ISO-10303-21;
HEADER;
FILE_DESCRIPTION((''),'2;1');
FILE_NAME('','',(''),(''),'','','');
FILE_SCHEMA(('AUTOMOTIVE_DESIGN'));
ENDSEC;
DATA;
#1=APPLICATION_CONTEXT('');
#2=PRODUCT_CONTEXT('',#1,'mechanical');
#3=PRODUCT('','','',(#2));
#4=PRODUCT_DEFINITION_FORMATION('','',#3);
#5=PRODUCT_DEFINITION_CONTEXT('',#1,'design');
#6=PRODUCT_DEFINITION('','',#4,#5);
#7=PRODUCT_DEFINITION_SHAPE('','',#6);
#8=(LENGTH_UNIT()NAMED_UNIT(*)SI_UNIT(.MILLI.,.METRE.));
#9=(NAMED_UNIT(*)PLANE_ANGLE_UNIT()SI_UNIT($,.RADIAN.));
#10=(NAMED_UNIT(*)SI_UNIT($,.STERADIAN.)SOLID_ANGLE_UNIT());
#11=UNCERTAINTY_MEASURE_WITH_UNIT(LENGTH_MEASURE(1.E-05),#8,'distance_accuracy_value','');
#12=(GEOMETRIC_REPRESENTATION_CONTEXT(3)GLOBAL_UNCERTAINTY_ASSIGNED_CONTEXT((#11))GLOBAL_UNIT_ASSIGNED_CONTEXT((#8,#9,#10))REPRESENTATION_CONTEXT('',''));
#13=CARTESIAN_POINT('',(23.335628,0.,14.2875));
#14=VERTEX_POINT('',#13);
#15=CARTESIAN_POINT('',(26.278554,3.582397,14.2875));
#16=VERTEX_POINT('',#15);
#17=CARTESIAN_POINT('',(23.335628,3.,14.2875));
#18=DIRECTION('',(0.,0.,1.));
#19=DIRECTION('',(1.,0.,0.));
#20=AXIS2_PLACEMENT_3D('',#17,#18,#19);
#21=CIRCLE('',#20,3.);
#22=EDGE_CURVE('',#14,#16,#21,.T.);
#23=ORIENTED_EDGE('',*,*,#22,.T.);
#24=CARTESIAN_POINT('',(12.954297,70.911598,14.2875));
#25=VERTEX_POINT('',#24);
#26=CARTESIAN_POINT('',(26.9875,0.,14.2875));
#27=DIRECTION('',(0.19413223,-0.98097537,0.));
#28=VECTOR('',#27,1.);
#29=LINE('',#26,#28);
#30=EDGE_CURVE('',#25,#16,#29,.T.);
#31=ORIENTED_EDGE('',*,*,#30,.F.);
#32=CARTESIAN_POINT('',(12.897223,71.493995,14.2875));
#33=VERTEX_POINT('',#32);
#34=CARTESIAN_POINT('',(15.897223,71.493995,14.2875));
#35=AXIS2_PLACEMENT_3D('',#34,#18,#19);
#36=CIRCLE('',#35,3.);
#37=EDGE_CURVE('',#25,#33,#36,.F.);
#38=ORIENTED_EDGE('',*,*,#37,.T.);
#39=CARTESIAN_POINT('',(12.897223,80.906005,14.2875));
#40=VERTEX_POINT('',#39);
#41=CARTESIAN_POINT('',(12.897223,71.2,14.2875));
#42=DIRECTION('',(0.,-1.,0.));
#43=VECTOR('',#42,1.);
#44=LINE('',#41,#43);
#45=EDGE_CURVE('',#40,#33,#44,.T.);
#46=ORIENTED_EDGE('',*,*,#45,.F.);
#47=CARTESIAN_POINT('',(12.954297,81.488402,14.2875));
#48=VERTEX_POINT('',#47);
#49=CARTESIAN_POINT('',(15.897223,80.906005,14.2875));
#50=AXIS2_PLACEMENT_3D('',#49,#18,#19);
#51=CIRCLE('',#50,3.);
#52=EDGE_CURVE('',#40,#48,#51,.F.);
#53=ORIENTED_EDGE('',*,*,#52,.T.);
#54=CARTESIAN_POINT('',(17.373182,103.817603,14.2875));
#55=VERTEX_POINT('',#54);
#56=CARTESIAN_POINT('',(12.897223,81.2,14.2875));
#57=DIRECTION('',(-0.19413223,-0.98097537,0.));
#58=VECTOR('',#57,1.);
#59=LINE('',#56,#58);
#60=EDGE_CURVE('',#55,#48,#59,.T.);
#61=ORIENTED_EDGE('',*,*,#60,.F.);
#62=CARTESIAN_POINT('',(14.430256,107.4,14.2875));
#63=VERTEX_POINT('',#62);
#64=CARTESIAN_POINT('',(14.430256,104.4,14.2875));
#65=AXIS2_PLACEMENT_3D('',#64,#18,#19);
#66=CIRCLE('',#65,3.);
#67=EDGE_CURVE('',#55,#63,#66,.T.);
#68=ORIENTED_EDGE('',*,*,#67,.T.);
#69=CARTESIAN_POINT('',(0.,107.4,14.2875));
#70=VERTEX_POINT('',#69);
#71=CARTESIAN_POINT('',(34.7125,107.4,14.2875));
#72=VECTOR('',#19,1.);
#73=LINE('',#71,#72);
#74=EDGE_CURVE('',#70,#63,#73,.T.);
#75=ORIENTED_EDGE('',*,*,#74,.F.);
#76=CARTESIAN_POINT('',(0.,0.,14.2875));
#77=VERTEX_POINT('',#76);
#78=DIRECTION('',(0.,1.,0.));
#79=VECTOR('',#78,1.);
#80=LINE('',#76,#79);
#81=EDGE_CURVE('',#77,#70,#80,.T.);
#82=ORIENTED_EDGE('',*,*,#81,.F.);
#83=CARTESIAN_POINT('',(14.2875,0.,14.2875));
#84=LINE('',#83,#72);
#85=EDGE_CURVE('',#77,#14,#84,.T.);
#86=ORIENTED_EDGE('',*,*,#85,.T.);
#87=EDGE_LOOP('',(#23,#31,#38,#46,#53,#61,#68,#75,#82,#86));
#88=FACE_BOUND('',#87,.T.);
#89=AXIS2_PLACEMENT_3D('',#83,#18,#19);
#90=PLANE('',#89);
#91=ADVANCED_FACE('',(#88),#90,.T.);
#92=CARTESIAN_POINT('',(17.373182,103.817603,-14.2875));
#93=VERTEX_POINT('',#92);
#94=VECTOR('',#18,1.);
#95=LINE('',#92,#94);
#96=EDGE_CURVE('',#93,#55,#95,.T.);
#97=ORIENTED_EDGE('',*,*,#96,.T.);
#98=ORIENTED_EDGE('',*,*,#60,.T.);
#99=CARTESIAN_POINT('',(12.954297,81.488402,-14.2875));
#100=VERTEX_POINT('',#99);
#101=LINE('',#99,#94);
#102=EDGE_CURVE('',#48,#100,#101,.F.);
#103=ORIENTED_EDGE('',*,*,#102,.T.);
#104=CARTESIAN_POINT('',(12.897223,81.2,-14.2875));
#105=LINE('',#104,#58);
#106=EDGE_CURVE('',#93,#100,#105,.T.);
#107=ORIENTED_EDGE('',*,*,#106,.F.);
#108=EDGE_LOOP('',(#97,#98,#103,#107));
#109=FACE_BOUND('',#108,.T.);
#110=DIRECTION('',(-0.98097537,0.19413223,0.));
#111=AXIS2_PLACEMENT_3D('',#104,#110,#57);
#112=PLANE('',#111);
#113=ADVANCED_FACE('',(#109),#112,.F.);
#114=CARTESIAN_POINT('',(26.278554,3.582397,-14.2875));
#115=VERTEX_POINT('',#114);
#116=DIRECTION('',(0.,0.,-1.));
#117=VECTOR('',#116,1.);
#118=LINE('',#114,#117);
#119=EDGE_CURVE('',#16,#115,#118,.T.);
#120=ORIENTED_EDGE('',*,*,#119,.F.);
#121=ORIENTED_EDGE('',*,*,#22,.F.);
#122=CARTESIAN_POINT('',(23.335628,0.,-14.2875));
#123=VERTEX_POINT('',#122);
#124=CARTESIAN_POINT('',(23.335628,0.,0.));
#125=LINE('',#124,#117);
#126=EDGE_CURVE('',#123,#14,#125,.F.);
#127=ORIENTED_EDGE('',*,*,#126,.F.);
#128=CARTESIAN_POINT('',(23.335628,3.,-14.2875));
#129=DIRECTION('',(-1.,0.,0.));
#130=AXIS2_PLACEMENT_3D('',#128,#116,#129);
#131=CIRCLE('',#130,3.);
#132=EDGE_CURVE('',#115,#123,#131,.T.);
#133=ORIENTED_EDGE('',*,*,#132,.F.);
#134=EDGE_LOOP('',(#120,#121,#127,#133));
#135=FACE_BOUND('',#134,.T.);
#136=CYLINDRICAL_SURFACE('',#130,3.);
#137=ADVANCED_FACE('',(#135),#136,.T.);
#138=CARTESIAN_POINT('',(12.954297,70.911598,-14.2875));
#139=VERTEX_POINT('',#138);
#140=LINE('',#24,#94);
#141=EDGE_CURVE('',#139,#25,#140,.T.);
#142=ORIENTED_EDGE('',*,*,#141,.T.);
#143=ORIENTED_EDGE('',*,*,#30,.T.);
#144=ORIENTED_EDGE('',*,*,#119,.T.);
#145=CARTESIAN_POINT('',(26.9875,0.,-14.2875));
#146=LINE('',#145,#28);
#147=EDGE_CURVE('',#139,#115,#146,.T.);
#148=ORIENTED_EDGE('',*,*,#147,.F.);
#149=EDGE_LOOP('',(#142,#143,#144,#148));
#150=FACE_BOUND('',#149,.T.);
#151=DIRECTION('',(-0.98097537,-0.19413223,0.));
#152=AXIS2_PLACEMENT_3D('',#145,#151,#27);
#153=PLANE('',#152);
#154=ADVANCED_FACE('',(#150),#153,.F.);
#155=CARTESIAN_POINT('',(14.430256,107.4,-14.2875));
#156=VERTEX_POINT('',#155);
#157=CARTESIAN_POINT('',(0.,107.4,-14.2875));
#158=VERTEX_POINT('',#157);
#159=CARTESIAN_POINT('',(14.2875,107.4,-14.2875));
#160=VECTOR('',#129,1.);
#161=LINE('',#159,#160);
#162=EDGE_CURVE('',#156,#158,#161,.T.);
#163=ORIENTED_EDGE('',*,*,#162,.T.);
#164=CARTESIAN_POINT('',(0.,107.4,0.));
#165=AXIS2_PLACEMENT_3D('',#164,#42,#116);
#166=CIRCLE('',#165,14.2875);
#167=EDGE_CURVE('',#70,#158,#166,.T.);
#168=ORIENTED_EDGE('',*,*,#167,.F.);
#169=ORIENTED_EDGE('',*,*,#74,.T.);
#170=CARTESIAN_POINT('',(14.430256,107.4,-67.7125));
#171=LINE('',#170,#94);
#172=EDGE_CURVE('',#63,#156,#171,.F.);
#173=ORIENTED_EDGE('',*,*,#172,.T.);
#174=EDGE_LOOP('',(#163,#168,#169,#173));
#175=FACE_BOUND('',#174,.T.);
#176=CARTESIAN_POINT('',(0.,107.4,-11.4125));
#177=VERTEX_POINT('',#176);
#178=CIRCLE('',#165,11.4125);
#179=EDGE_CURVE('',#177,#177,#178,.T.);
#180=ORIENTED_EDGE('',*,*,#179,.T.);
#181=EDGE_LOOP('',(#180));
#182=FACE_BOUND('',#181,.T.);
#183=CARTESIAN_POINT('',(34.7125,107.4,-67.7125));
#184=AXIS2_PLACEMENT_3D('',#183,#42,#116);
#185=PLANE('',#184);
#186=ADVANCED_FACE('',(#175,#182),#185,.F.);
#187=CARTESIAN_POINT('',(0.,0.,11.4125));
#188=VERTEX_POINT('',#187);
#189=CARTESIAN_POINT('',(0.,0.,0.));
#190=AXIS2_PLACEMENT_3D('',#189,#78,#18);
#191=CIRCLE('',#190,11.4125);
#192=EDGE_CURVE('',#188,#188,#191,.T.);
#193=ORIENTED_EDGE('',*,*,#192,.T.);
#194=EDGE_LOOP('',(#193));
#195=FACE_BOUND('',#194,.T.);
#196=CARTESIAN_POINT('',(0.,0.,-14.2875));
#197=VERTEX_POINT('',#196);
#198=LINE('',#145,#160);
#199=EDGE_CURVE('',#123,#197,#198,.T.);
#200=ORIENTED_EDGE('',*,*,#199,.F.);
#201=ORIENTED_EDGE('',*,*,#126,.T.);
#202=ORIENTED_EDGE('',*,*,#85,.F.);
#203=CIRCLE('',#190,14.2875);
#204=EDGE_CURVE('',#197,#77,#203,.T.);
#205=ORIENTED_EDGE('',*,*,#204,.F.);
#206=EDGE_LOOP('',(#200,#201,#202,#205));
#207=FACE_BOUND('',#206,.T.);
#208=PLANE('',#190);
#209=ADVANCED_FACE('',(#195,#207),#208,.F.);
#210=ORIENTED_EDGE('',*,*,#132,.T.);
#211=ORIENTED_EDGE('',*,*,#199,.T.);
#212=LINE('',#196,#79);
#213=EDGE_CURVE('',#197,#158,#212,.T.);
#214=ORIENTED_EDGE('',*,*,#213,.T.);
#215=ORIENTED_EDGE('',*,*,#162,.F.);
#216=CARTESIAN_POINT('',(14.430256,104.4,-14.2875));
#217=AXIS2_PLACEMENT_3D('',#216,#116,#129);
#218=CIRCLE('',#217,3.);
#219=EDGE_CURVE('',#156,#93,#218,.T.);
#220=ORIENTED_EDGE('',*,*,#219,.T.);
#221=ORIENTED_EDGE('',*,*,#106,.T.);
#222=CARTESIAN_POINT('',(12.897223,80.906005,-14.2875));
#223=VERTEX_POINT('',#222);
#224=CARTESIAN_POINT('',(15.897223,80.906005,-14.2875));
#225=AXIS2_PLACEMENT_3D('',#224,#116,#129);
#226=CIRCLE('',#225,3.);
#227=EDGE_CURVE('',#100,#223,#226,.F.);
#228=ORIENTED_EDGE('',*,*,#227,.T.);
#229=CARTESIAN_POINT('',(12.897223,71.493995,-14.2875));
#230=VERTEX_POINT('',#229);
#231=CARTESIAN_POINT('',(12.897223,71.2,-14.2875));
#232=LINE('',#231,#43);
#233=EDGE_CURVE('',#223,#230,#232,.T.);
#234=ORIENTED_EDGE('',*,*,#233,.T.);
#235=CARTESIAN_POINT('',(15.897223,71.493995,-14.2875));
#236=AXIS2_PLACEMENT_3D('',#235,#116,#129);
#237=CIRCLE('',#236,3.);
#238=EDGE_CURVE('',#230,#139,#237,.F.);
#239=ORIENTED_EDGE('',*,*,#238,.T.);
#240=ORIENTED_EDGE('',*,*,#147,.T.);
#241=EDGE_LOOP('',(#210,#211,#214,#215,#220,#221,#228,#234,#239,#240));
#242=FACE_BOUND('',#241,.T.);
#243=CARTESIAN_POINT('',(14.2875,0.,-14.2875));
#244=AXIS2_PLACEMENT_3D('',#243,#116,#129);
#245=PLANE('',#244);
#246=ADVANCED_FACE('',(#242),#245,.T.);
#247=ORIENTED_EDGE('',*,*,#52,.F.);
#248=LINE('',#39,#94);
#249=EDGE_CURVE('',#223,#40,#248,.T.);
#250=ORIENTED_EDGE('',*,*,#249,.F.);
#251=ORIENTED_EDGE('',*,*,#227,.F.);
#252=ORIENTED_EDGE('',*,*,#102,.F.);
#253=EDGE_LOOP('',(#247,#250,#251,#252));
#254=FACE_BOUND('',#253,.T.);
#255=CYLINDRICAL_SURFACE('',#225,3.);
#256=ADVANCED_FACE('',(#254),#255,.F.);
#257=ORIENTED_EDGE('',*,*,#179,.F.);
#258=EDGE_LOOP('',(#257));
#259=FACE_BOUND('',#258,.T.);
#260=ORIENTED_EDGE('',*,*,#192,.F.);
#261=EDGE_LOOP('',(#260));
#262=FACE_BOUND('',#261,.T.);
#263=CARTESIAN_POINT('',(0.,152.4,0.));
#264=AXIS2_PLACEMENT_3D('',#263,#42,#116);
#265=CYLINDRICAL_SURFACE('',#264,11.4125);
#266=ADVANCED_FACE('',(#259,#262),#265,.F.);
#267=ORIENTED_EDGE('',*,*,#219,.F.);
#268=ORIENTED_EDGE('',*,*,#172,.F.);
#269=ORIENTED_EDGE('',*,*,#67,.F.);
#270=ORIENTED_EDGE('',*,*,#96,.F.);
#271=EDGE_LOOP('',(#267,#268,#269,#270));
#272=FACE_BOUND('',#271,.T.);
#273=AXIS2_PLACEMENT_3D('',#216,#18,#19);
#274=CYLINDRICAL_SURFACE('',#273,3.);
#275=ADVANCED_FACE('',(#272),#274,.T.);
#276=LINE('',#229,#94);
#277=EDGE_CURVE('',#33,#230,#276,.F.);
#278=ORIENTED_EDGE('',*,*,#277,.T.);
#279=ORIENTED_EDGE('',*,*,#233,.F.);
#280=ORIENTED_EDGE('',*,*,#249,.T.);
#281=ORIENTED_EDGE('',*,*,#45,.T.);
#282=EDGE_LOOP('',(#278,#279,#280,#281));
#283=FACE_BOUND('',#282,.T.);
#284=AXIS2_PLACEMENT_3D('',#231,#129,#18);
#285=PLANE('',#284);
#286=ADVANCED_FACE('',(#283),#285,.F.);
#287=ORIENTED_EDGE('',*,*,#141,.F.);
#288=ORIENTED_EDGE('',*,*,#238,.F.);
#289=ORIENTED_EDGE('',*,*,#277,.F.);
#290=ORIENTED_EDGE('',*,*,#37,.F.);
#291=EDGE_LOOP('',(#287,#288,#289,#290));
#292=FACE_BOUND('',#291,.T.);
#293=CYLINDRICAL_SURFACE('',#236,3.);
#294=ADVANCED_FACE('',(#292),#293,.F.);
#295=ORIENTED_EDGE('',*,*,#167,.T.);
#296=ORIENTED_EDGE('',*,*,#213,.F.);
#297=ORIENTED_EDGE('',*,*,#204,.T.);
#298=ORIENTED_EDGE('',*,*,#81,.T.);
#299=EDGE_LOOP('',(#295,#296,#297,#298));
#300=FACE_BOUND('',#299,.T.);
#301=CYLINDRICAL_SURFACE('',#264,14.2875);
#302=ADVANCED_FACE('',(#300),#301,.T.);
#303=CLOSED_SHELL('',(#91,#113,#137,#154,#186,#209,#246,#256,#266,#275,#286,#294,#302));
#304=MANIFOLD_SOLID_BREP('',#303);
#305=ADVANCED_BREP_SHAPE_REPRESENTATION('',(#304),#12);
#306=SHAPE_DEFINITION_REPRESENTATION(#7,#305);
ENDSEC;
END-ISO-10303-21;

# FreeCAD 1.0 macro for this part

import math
import FreeCAD as App
import Part
import Sketcher

V = App.Vector
Q = App.Units.Quantity


def edges_at(feature, points):
    """Names of the edges that pass closest to the given points."""
    edges = feature.Shape.Edges
    near = lambda p: min(range(len(edges)), key=lambda i: edges[i].distToShape(Part.Vertex(*p))[0])
    return sorted({f"Edge{near(p) + 1}" for p in points})

doc = App.newDocument("Part")
body = doc.addObject("PartDesign::Body", "Body")

# Sketch on XZ plane
sketch1 = body.newObject("Sketcher::SketchObject", "Sketch")
sketch1.AttachmentSupport = (doc.getObject("XZ_Plane"), [""])
sketch1.MapMode = "FlatFace"
sketch1.addGeometry([
    Part.Circle(V(0, 0, 0), V(0, 0, 1), 14),
    Part.Circle(V(0, 0, 0), V(0, 0, 1), 11),
], False)
sketch1.addConstraint([
    Sketcher.Constraint("Coincident", 0, 3, -1, 1),
    Sketcher.Constraint("Coincident", 1, 3, -1, 1),
    Sketcher.Constraint("Diameter", 0, Q("28.575 mm")),
    Sketcher.Constraint("Diameter", 1, Q("22.825 mm")),
])
pad1 = body.newObject("PartDesign::Pad", "Pad")
pad1.Profile = sketch1
pad1.Length = 152.4
pad1.Reversed = True
body2 = doc.addObject("PartDesign::Body", "Body001")

# Sketch on YZ plane
sketch2 = body2.newObject("Sketcher::SketchObject", "Sketch001")
sketch2.AttachmentSupport = (doc.getObject("YZ_Plane001"), [""])
sketch2.MapMode = "FlatFace"
sketch2.AttachmentOffset = App.Placement(V(0, 0, 14.2875), App.Rotation())
sketch2.addGeometry([
    Part.LineSegment(V(152, 14, 0), V(0, 14, 0)),
    Part.LineSegment(V(0, 14, 0), V(0, -14, 0)),
    Part.LineSegment(V(0, -14, 0), V(152, -14, 0)),
    Part.LineSegment(V(152, -14, 0), V(152, 14, 0)),
], False)
sketch2.addConstraint([
    Sketcher.Constraint("Coincident", 0, 2, 1, 1),
    Sketcher.Constraint("Coincident", 1, 2, 2, 1),
    Sketcher.Constraint("Coincident", 2, 2, 3, 1),
    Sketcher.Constraint("Coincident", 3, 2, 0, 1),
    Sketcher.Constraint("Horizontal", 0),
    Sketcher.Constraint("Vertical", 1),
    Sketcher.Constraint("Horizontal", 2),
    Sketcher.Constraint("Vertical", 3),
    Sketcher.Constraint("Symmetric", 0, 2, 1, 2, -1, 1),
    Sketcher.Constraint("DistanceX", 0, 2, 0, 1, Q("152.4 mm")),
    Sketcher.Constraint("DistanceY", 1, 2, 1, 1, Q("28.575 mm")),
])
pad2 = body2.newObject("PartDesign::Pad", "Pad001")
pad2.Profile = sketch2
pad2.Length = 12.7
body.AllowCompound = True
doc.recompute()

boolean = body.newObject("PartDesign::Boolean", "Boolean")
boolean.Type = "Fuse"
boolean.addObjects([body2])

# Sketch on XZ plane
sketch3 = body.newObject("Sketcher::SketchObject", "Sketch002")
sketch3.AttachmentSupport = (doc.getObject("XZ_Plane"), [""])
sketch3.MapMode = "FlatFace"
sketch3.AttachmentOffset = App.Placement(V(0, 0, -152.4), App.Rotation())
sketch3.addGeometry([
    Part.ArcOfCircle(Part.Circle(V(0, 0, 0), V(0, 0, 1), 14), math.radians(-90), math.radians(90)),
    Part.LineSegment(V(0, 14, 0), V(27, 14, 0)),
    Part.LineSegment(V(27, 14, 0), V(27, -14, 0)),
    Part.LineSegment(V(27, -14, 0), V(0, -14, 0)),
], False)
sketch3.addConstraint([
    Sketcher.Constraint("Tangent", 0, 2, 1, 1),
    Sketcher.Constraint("Coincident", 1, 2, 2, 1),
    Sketcher.Constraint("Coincident", 2, 2, 3, 1),
    Sketcher.Constraint("Tangent", 3, 2, 0, 1),
    Sketcher.Constraint("Horizontal", 1),
    Sketcher.Constraint("Vertical", 2),
    Sketcher.Constraint("Horizontal", 3),
    Sketcher.Constraint("Coincident", 0, 3, -1, 1),
    Sketcher.Constraint("Radius", 0, Q("14.2875 mm")),
    Sketcher.Constraint("DistanceX", 1, 1, 1, 2, Q("26.9875 mm")),
])
pad3 = body.newObject("PartDesign::Pad", "Pad002")
pad3.Profile = sketch3
pad3.Type = "UpToLast"

# Sketch on XY plane
sketch4 = body.newObject("Sketcher::SketchObject", "Sketch003")
sketch4.AttachmentSupport = (doc.getObject("XY_Plane"), [""])
sketch4.MapMode = "FlatFace"
sketch4.AttachmentOffset = App.Placement(V(0, 0, 14.2875), App.Rotation())
sketch4.addGeometry([
    Part.LineSegment(V(13, 71, 0), V(27, 0, 0)),
    Part.LineSegment(V(27, 0, 0), V(27, 152, 0)),
    Part.LineSegment(V(27, 152, 0), V(13, 81, 0)),
    Part.LineSegment(V(13, 81, 0), V(13, 71, 0)),
], False)
sketch4.addConstraint([
    Sketcher.Constraint("Coincident", 0, 2, 1, 1),
    Sketcher.Constraint("Coincident", 1, 2, 2, 1),
    Sketcher.Constraint("Coincident", 2, 2, 3, 1),
    Sketcher.Constraint("Coincident", 3, 2, 0, 1),
    Sketcher.Constraint("Vertical", 1),
    Sketcher.Constraint("Vertical", 3),
    Sketcher.Constraint("PointOnObject", 0, 2, -1),
    Sketcher.Constraint("Equal", 0, 2),
    Sketcher.Constraint("DistanceY", 3, 2, 3, 1, Q("10 mm")),
    Sketcher.Constraint("DistanceY", 1, 1, 1, 2, Q("152.4 mm")),
    Sketcher.Constraint("DistanceX", -1, 1, 0, 2, Q("26.9875 mm")),
    Sketcher.Constraint("Distance", 0, Q("72.580823 mm")),
])
pocket1 = body.newObject("PartDesign::Pocket", "Pocket")
pocket1.Profile = sketch4
pocket1.Type = "ThroughAll"
doc.recompute()

fillet = body.newObject("PartDesign::Fillet", "Fillet")
fillet.Base = (pocket1, edges_at(pocket1, [
    (26.988, 0, 0),
    (26.988, 152.4, 0),
    (12.897, 71.2, 0),
    (12.897, 81.2, 0),
]))
fillet.Radius = 3

# Sketch on XY plane
sketch5 = body.newObject("Sketcher::SketchObject", "Sketch004")
sketch5.AttachmentSupport = (doc.getObject("XY_Plane"), [""])
sketch5.MapMode = "FlatFace"
sketch5.AttachmentOffset = App.Placement(V(0, 0, 14.2875), App.Rotation())
sketch5.addGeometry([
    Part.LineSegment(V(-15, 152, 0), V(-15, 107, 0)),
    Part.LineSegment(V(-15, 107, 0), V(35, 107, 0)),
    Part.LineSegment(V(35, 107, 0), V(35, 152, 0)),
    Part.LineSegment(V(35, 152, 0), V(-15, 152, 0)),
], False)
sketch5.addConstraint([
    Sketcher.Constraint("Coincident", 0, 2, 1, 1),
    Sketcher.Constraint("Coincident", 1, 2, 2, 1),
    Sketcher.Constraint("Coincident", 2, 2, 3, 1),
    Sketcher.Constraint("Coincident", 3, 2, 0, 1),
    Sketcher.Constraint("Vertical", 0),
    Sketcher.Constraint("Horizontal", 1),
    Sketcher.Constraint("Vertical", 2),
    Sketcher.Constraint("Horizontal", 3),
    Sketcher.Constraint("DistanceX", 1, 1, 1, 2, Q("50 mm")),
    Sketcher.Constraint("DistanceY", 0, 2, 0, 1, Q("45 mm")),
    Sketcher.Constraint("DistanceY", -1, 1, 0, 2, Q("107.4 mm")),
    Sketcher.Constraint("DistanceX", 0, 2, -1, 1, Q("15.2875 mm")),
])
pocket2 = body.newObject("PartDesign::Pocket", "Pocket001")
pocket2.Profile = sketch5
pocket2.Length = 82
doc.recompute()

fillet2 = body.newObject("PartDesign::Fillet", "Fillet001")
fillet2.Base = (pocket2, edges_at(pocket2, [(18.082, 107.4, 0)]))
fillet2.Radius = 3

doc.recompute()
